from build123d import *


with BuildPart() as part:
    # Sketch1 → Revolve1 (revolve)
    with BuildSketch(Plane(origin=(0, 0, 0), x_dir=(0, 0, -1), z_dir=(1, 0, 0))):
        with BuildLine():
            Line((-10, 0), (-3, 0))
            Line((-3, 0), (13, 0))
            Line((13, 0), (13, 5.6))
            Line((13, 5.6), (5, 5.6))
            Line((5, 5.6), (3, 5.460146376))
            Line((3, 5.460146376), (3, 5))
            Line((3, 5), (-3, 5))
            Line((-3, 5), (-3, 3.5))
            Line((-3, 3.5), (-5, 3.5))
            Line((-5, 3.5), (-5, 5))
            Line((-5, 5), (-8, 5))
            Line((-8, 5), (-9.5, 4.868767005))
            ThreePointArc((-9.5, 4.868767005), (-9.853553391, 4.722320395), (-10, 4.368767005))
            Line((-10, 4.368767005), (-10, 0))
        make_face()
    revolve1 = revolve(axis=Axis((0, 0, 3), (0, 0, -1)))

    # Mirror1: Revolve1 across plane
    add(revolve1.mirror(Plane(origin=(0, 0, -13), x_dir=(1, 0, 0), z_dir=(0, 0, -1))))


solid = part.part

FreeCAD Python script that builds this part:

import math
import FreeCAD as App
import Part
import Sketcher
Q = App.Units.Quantity

doc = App.newDocument("Part")
body = doc.addObject("PartDesign::Body", "Body")

sketch1 = body.newObject("Sketcher::SketchObject", "Sketch")
sketch1.AttachmentSupport = (doc.getObject("YZ_Plane"), [""])
sketch1.MapMode = "FlatFace"
sketch1.addGeometry([
    Part.LineSegment(App.Vector(0, 10, 0), App.Vector(0, -13, 0)),
    Part.LineSegment(App.Vector(0, -13, 0), App.Vector(5.6, -13, 0)),
    Part.LineSegment(App.Vector(5.6, -13, 0), App.Vector(5.6, -5, 0)),
    Part.LineSegment(App.Vector(5.6, -5, 0), App.Vector(5.460146, -3, 0)),
    Part.LineSegment(App.Vector(5.460146, -3, 0), App.Vector(5, -3, 0)),
    Part.LineSegment(App.Vector(5, -3, 0), App.Vector(5, 3, 0)),
    Part.LineSegment(App.Vector(5, 3, 0), App.Vector(3.5, 3, 0)),
    Part.LineSegment(App.Vector(3.5, 3, 0), App.Vector(3.5, 5, 0)),
    Part.LineSegment(App.Vector(3.5, 5, 0), App.Vector(5, 5, 0)),
    Part.LineSegment(App.Vector(5, 5, 0), App.Vector(5, 8, 0)),
    Part.LineSegment(App.Vector(5, 8, 0), App.Vector(4.868767, 9.5, 0)),
    Part.ArcOfCircle(Part.Circle(App.Vector(4.368767, 9.5, 0), App.Vector(0, 0, 1), 0.5), math.radians(0), math.radians(90)),
    Part.LineSegment(App.Vector(4.368767, 10, 0), App.Vector(0, 10, 0)),
], False)
sketch1.addConstraint([
    Sketcher.Constraint("Coincident", 0, 2, 1, 1),
    Sketcher.Constraint("Coincident", 1, 2, 2, 1),
    Sketcher.Constraint("Coincident", 2, 2, 3, 1),
    Sketcher.Constraint("Coincident", 3, 2, 4, 1),
    Sketcher.Constraint("Coincident", 4, 2, 5, 1),
    Sketcher.Constraint("Coincident", 5, 2, 6, 1),
    Sketcher.Constraint("Coincident", 6, 2, 7, 1),
    Sketcher.Constraint("Coincident", 7, 2, 8, 1),
    Sketcher.Constraint("Coincident", 8, 2, 9, 1),
    Sketcher.Constraint("Coincident", 9, 2, 10, 1),
    Sketcher.Constraint("Coincident", 10, 2, 11, 1),
    Sketcher.Constraint("Tangent", 11, 2, 12, 1),
    Sketcher.Constraint("Coincident", 12, 2, 0, 1),
    Sketcher.Constraint("Vertical", 0),
    Sketcher.Constraint("Horizontal", 1),
    Sketcher.Constraint("Vertical", 2),
    Sketcher.Constraint("Horizontal", 4),
    Sketcher.Constraint("Vertical", 5),
    Sketcher.Constraint("Horizontal", 6),
    Sketcher.Constraint("Vertical", 7),
    Sketcher.Constraint("Horizontal", 8),
    Sketcher.Constraint("Vertical", 9),
    Sketcher.Constraint("Horizontal", 12),
    Sketcher.Constraint("PointOnObject", 0, 2, -2),
    Sketcher.Constraint("Horizontal", 11, 3, 10, 2),
    Sketcher.Constraint("Vertical", 5, 2, 8, 2),
    Sketcher.Constraint("Radius", 11, Q("0.5 mm")),
    Sketcher.Constraint("DistanceY", 0, 2, 0, 1, Q("23 mm")),
    Sketcher.Constraint("DistanceY", 2, 1, 2, 2, Q("8 mm")),
    Sketcher.Constraint("DistanceY", 5, 1, 5, 2, Q("6 mm")),
    Sketcher.Constraint("DistanceY", 7, 1, 7, 2, Q("2 mm")),
    Sketcher.Constraint("DistanceY", 9, 1, 9, 2, Q("3 mm")),
    Sketcher.Constraint("Angle", 3, Q("94 deg")),
    Sketcher.Constraint("Angle", 10, Q("95 deg")),
    Sketcher.Constraint("DistanceX", 1, 1, 1, 2, Q("5.6 mm")),
    Sketcher.Constraint("DistanceX", 6, 2, 6, 1, Q("1.5 mm")),
    Sketcher.Constraint("DistanceY", 0, 2, -1, 1, Q("13 mm")),
    Sketcher.Constraint("DistanceY", 3, 2, -1, 1, Q("3 mm")),
    Sketcher.Constraint("DistanceX", -1, 1, 4, 2, Q("5 mm")),
])
revolution = body.newObject("PartDesign::Revolution", "Revolution")
revolution.Profile = sketch1
revolution.ReferenceAxis = (sketch1, ["V_Axis"])
revolution.Angle = 360
doc.recompute()

datumplane = body.newObject("PartDesign::Plane", "DatumPlane")
datumplane.AttachmentSupport = (doc.getObject("XY_Plane"), [""])
datumplane.MapMode = "FlatFace"
datumplane.AttachmentOffset = App.Placement(App.Vector(0, 0, -13), App.Rotation())
mirrored = body.newObject("PartDesign::Mirrored", "Mirrored")
mirrored.Originals = [revolution]
mirrored.MirrorPlane = (datumplane, [""])
body.Tip = mirrored

doc.recompute()
